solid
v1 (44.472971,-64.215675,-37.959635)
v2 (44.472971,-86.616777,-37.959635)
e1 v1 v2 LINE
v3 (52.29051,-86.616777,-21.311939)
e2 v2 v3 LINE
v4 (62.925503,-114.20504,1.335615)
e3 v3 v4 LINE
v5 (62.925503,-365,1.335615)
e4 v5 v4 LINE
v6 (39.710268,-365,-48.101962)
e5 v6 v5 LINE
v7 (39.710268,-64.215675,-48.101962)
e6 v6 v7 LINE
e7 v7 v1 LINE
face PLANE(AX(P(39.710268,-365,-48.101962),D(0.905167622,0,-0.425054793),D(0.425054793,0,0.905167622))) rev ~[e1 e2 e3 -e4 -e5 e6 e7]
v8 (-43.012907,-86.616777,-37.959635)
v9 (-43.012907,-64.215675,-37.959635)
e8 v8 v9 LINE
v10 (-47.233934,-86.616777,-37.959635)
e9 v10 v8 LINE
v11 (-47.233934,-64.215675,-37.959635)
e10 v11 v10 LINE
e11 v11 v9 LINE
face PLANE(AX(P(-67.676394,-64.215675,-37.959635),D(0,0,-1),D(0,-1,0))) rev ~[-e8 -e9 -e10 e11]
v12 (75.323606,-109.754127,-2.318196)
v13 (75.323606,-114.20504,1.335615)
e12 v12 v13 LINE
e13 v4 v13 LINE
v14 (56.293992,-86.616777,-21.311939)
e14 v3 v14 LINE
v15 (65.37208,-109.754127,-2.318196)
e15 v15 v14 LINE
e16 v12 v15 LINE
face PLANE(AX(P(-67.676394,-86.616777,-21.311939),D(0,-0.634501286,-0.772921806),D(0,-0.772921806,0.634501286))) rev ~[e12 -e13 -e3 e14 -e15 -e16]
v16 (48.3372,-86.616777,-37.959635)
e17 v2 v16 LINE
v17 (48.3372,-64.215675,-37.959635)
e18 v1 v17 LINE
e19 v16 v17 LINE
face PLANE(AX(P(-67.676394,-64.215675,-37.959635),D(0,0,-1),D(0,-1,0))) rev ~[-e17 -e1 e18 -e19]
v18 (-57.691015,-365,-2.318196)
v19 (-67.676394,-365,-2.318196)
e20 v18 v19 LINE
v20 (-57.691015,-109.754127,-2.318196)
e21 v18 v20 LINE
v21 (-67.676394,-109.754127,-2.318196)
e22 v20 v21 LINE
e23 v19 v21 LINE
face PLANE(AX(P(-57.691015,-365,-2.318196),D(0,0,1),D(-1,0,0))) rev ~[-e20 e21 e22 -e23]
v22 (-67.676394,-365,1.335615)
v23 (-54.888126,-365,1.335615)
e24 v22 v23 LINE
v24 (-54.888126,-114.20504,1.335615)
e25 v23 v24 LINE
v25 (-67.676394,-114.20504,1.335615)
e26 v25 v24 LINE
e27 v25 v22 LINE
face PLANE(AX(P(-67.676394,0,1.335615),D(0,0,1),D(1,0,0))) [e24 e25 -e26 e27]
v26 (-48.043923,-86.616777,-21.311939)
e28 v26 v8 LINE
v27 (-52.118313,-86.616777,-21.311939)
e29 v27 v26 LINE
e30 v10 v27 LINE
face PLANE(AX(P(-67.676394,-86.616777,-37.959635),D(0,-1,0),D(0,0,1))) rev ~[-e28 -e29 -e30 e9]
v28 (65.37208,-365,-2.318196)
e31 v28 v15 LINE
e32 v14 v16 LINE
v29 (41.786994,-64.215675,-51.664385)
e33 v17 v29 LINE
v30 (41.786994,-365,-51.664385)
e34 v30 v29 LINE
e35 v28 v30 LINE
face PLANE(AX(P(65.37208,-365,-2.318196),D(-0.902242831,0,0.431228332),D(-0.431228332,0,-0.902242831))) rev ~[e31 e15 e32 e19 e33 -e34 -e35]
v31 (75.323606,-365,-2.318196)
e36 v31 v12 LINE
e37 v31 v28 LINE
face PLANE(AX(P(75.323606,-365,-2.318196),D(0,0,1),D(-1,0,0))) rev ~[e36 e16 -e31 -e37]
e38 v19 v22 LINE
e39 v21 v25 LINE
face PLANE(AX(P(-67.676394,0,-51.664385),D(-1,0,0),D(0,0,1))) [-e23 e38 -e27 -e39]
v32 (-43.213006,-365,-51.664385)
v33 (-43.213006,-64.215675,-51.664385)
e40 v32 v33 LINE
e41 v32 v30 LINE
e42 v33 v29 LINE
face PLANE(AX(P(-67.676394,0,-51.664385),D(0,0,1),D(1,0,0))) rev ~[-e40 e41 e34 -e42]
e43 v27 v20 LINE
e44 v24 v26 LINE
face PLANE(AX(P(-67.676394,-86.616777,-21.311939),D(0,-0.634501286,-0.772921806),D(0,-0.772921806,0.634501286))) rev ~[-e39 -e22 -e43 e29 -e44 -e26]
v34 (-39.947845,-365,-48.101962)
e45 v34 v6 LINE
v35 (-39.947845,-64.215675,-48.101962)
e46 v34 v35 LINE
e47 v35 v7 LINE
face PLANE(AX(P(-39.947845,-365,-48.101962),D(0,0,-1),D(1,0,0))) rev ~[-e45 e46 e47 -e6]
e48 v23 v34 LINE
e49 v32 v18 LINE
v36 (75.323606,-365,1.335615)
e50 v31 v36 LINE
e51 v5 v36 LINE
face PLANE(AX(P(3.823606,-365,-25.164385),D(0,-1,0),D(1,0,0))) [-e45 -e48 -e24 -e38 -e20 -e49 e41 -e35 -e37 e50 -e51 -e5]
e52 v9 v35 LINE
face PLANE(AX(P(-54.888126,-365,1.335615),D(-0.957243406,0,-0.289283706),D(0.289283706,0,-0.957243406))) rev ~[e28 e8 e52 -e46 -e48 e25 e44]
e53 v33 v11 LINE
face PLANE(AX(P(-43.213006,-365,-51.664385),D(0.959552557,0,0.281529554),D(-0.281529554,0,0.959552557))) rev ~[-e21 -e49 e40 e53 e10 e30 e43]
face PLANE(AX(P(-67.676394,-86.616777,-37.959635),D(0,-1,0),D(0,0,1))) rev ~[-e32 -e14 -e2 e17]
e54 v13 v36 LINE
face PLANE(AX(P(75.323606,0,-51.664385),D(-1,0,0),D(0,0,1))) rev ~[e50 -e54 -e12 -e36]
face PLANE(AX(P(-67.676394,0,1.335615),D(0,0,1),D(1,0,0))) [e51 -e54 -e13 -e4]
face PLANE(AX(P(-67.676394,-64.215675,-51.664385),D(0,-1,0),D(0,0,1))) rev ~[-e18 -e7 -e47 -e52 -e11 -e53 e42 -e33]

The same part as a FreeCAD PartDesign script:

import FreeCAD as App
import Part
import Sketcher

doc = App.newDocument("Part")
params = doc.addObject("Spreadsheet::Sheet", "Params")
for row, (alias, value) in enumerate([
    ("sketch1_width", "143 mm"),
    ("sketch1_height", "53 mm"),
    ("pad1_length", "365 mm"),
    ("sketch2_height", "53 mm"),
], start=1):
    params.set(f"A{row}", alias)
    params.set(f"B{row}", "=" + value)
    params.setAlias(f"B{row}", alias)

body = doc.addObject("PartDesign::Body", "Body")

sketch1 = body.newObject("Sketcher::SketchObject", "Sketch")
sketch1.AttachmentSupport = (doc.getObject("XZ_Plane"), [""])
sketch1.MapMode = "FlatFace"
sketch1.addGeometry([
    Part.LineSegment(App.Vector(-68, 1, 0), App.Vector(-68, -52, 0)),
    Part.LineSegment(App.Vector(-68, -52, 0), App.Vector(75, -52, 0)),
    Part.LineSegment(App.Vector(75, -52, 0), App.Vector(75, 1, 0)),
    Part.LineSegment(App.Vector(75, 1, 0), App.Vector(-68, 1, 0)),
], False)
sketch1.addConstraint([
    Sketcher.Constraint("Coincident", 0, 2, 1, 1),
    Sketcher.Constraint("Coincident", 1, 2, 2, 1),
    Sketcher.Constraint("Coincident", 2, 2, 3, 1),
    Sketcher.Constraint("Coincident", 3, 2, 0, 1),
    Sketcher.Constraint("Vertical", 0),
    Sketcher.Constraint("Horizontal", 1),
    Sketcher.Constraint("Vertical", 2),
    Sketcher.Constraint("Horizontal", 3),
    Sketcher.Constraint("DistanceX", 1, 1, 1, 2, 143.0),
    Sketcher.Constraint("DistanceY", 0, 2, 0, 1, 53.0),
    Sketcher.Constraint("DistanceX", 0, 2, -1, 1, 67.676394),
    Sketcher.Constraint("DistanceY", 0, 2, -1, 1, 51.664385),
])
sketch1.setExpression("Constraints[8]", "Params.sketch1_width")
sketch1.setExpression("Constraints[9]", "Params.sketch1_height")
pad1 = body.newObject("PartDesign::Pad", "Pad")
pad1.Profile = sketch1
pad1.setExpression("Length", "Params.pad1_length")

sketch2 = body.newObject("Sketcher::SketchObject", "Sketch001")
sketch2.AttachmentSupport = (doc.getObject("YZ_Plane"), [""])
sketch2.MapMode = "FlatFace"
sketch2.AttachmentOffset = App.Placement(App.Vector(0, 0, -67.676394), App.Rotation())
sketch2.addGeometry([
    Part.LineSegment(App.Vector(0, -52, 0), App.Vector(-64, -52, 0)),
    Part.LineSegment(App.Vector(-64, -52, 0), App.Vector(-64, -38, 0)),
    Part.LineSegment(App.Vector(-64, -38, 0), App.Vector(-87, -38, 0)),
    Part.LineSegment(App.Vector(-87, -38, 0), App.Vector(-87, -21, 0)),
    Part.LineSegment(App.Vector(-87, -21, 0), App.Vector(-114, 1, 0)),
    Part.LineSegment(App.Vector(-114, 1, 0), App.Vector(0, 1, 0)),
    Part.LineSegment(App.Vector(0, 1, 0), App.Vector(0, -52, 0)),
], False)
sketch2.addConstraint([
    Sketcher.Constraint("Coincident", 0, 2, 1, 1),
    Sketcher.Constraint("Coincident", 1, 2, 2, 1),
    Sketcher.Constraint("Coincident", 2, 2, 3, 1),
    Sketcher.Constraint("Coincident", 3, 2, 4, 1),
    Sketcher.Constraint("Coincident", 4, 2, 5, 1),
    Sketcher.Constraint("Coincident", 5, 2, 6, 1),
    Sketcher.Constraint("Coincident", 6, 2, 0, 1),
    Sketcher.Constraint("Horizontal", 0),
    Sketcher.Constraint("Vertical", 1),
    Sketcher.Constraint("Horizontal", 2),
    Sketcher.Constraint("Vertical", 3),
    Sketcher.Constraint("Horizontal", 5),
    Sketcher.Constraint("Vertical", 6),
    Sketcher.Constraint("PointOnObject", 5, 2, -2),
    Sketcher.Constraint("DistanceY", 6, 2, 6, 1, 53.0),
    Sketcher.Constraint("DistanceX", 2, 2, 2, 1, 22.401102),
    Sketcher.Constraint("DistanceX", 5, 1, 5, 2, 114.20504),
    Sketcher.Constraint("DistanceY", 1, 1, 1, 2, 13.70475),
    Sketcher.Constraint("DistanceX", 0, 2, 0, 1, 64.215675),
    Sketcher.Constraint("DistanceY", 3, 1, 3, 2, 16.647696),
    Sketcher.Constraint("DistanceY", 3, 2, -1, 1, 21.311939),
])
sketch2.setExpression("Constraints[14]", "Params.sketch2_height")
pocket1 = body.newObject("PartDesign::Pocket", "Pocket")
pocket1.Profile = sketch2
pocket1.Type = "ThroughAll"
pocket1.Reversed = True

sketch3 = body.newObject("Sketcher::SketchObject", "Sketch002")
sketch3.AttachmentSupport = (doc.getObject("XZ_Plane"), [""])
sketch3.MapMode = "FlatFace"
sketch3.AttachmentOffset = App.Placement(App.Vector(0, 0, 365), App.Rotation())
sketch3.addGeometry([
    Part.LineSegment(App.Vector(-58, -2, 0), App.Vector(-68, -2, 0)),
    Part.LineSegment(App.Vector(-68, -2, 0), App.Vector(-68, -52, 0)),
    Part.LineSegment(App.Vector(-68, -52, 0), App.Vector(-43, -52, 0)),
    Part.LineSegment(App.Vector(-43, -52, 0), App.Vector(-58, -2, 0)),
    Part.LineSegment(App.Vector(65, -2, 0), App.Vector(42, -52, 0)),
    Part.LineSegment(App.Vector(42, -52, 0), App.Vector(75, -52, 0)),
    Part.LineSegment(App.Vector(75, -52, 0), App.Vector(75, -2, 0)),
    Part.LineSegment(App.Vector(75, -2, 0), App.Vector(65, -2, 0)),
], False)
sketch3.addConstraint([
    Sketcher.Constraint("Coincident", 0, 2, 1, 1),
    Sketcher.Constraint("Coincident", 1, 2, 2, 1),
    Sketcher.Constraint("Coincident", 2, 2, 3, 1),
    Sketcher.Constraint("Coincident", 3, 2, 0, 1),
    Sketcher.Constraint("Coincident", 4, 2, 5, 1),
    Sketcher.Constraint("Coincident", 5, 2, 6, 1),
    Sketcher.Constraint("Coincident", 6, 2, 7, 1),
    Sketcher.Constraint("Coincident", 7, 2, 4, 1),
    Sketcher.Constraint("Horizontal", 0),
    Sketcher.Constraint("Vertical", 1),
    Sketcher.Constraint("Horizontal", 2),
    Sketcher.Constraint("Horizontal", 5),
    Sketcher.Constraint("Vertical", 6),
    Sketcher.Constraint("Horizontal", 7),
    Sketcher.Constraint("Horizontal", 2, 2, 4, 2),
    Sketcher.Constraint("Horizontal", 3, 2, 6, 2),
    Sketcher.Constraint("DistanceX", 2, 2, 4, 2, 85.0),
    Sketcher.Constraint("DistanceX", 1, 2, 5, 2, 143.0),
    Sketcher.Constraint("DistanceX", 0, 2, 0, 1, 9.985379),
    Sketcher.Constraint("DistanceX", 2, 1, 2, 2, 24.463388),
    Sketcher.Constraint("DistanceY", 1, 2, 1, 1, 49.346189),
    Sketcher.Constraint("DistanceX", 7, 2, 7, 1, 9.951526),
    Sketcher.Constraint("DistanceX", -1, 1, 7, 2, 65.37208),
    Sketcher.Constraint("DistanceY", 0, 2, -1, 1, 2.318196),
])
pocket2 = body.newObject("PartDesign::Pocket", "Pocket001")
pocket2.Profile = sketch3
pocket2.Type = "ThroughAll"

sketch4 = body.newObject("Sketcher::SketchObject", "Sketch003")
sketch4.AttachmentSupport = (doc.getObject("XZ_Plane"), [""])
sketch4.MapMode = "FlatFace"
sketch4.AttachmentOffset = App.Placement(App.Vector(0, 0, 365), App.Rotation())
sketch4.addGeometry([
    Part.LineSegment(App.Vector(63, 1, 0), App.Vector(-55, 1, 0)),
    Part.LineSegment(App.Vector(-55, 1, 0), App.Vector(-40, -48, 0)),
    Part.LineSegment(App.Vector(-40, -48, 0), App.Vector(40, -48, 0)),
    Part.LineSegment(App.Vector(40, -48, 0), App.Vector(63, 1, 0)),
], False)
sketch4.addConstraint([
    Sketcher.Constraint("Coincident", 0, 2, 1, 1),
    Sketcher.Constraint("Coincident", 1, 2, 2, 1),
    Sketcher.Constraint("Coincident", 2, 2, 3, 1),
    Sketcher.Constraint("Coincident", 3, 2, 0, 1),
    Sketcher.Constraint("Horizontal", 0),
    Sketcher.Constraint("Horizontal", 2),
    Sketcher.Constraint("DistanceX", 0, 2, 0, 1, 117.813629),
    Sketcher.Constraint("Distance", 3, 54.617041),
    Sketcher.Constraint("DistanceX", 2, 1, 2, 2, 79.658113),
    Sketcher.Constraint("DistanceX", 0, 2, 1, 2, 14.940281),
    Sketcher.Constraint("DistanceX", 0, 2, -1, 1, 54.888126),
    Sketcher.Constraint("DistanceY", -1, 1, 0, 2, 1.335615),
])
pocket3 = body.newObject("PartDesign::Pocket", "Pocket002")
pocket3.Profile = sketch4
pocket3.Type = "ThroughAll"

doc.recompute()
